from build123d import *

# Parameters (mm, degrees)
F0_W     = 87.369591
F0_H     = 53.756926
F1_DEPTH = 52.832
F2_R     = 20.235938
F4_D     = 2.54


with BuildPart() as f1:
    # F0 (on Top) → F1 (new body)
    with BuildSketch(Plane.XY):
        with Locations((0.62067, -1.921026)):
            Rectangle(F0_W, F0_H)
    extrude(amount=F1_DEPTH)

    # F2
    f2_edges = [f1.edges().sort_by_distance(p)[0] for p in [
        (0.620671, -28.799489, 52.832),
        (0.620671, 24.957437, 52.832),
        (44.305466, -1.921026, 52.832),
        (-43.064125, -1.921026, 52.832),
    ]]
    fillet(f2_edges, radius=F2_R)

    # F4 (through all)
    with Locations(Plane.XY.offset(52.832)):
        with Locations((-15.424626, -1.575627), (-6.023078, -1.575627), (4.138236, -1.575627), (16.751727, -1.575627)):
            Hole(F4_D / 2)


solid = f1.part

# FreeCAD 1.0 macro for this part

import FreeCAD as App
import Part
import Sketcher
Q = App.Units.Quantity


def edges_at(feature, points):
    """Names of the edges that pass closest to the given points."""
    edges = feature.Shape.Edges
    near = lambda p: min(range(len(edges)), key=lambda i: edges[i].distToShape(Part.Vertex(*p))[0])
    return sorted({f"Edge{near(p) + 1}" for p in points})

doc = App.newDocument("Part")
body = doc.addObject("PartDesign::Body", "Body")

# Sketch on XY plane
sketch1 = body.newObject("Sketcher::SketchObject", "Sketch")
sketch1.AttachmentSupport = (doc.getObject("XY_Plane"), [""])
sketch1.MapMode = "FlatFace"
sketch1.addGeometry([
    Part.LineSegment(App.Vector(-43, 25, 0), App.Vector(-43, -29, 0)),
    Part.LineSegment(App.Vector(-43, -29, 0), App.Vector(44, -29, 0)),
    Part.LineSegment(App.Vector(44, -29, 0), App.Vector(44, 25, 0)),
    Part.LineSegment(App.Vector(44, 25, 0), App.Vector(-43, 25, 0)),
], False)
sketch1.addConstraint([
    Sketcher.Constraint("Coincident", 0, 2, 1, 1),
    Sketcher.Constraint("Coincident", 1, 2, 2, 1),
    Sketcher.Constraint("Coincident", 2, 2, 3, 1),
    Sketcher.Constraint("Coincident", 3, 2, 0, 1),
    Sketcher.Constraint("Vertical", 0),
    Sketcher.Constraint("Horizontal", 1),
    Sketcher.Constraint("Vertical", 2),
    Sketcher.Constraint("Horizontal", 3),
    Sketcher.Constraint("DistanceX", 1, 1, 1, 2, 87.369591),
    Sketcher.Constraint("DistanceY", 0, 2, 0, 1, 53.756926),
    Sketcher.Constraint("DistanceY", 0, 2, -1, 1, 28.799489),
    Sketcher.Constraint("DistanceX", 0, 2, -1, 1, 43.064126),
])
pad1 = body.newObject("PartDesign::Pad", "Pad")
pad1.Profile = sketch1
pad1.Length = Q("2.08 in")
doc.recompute()

fillet = body.newObject("PartDesign::Fillet", "Fillet")
fillet.Base = (pad1, edges_at(pad1, [
    (0.621, -28.799, 52.832),
    (0.621, 24.957, 52.832),
    (44.305, -1.921, 52.832),
    (-43.064, -1.921, 52.832),
]))
fillet.Radius = 20.235938

# Sketch on XY plane
sketch2 = body.newObject("Sketcher::SketchObject", "Sketch001")
sketch2.AttachmentSupport = (doc.getObject("XY_Plane"), [""])
sketch2.MapMode = "FlatFace"
sketch2.AttachmentOffset = App.Placement(App.Vector(0, 0, 2.08 * 25.4), App.Rotation())
sketch2.addGeometry([
    Part.Circle(App.Vector(-15.4, -1.6, 0), App.Vector(0, 0, 1), 1.3),
    Part.Circle(App.Vector(-6, -1.6, 0), App.Vector(0, 0, 1), 1.3),
    Part.Circle(App.Vector(4.1, -1.6, 0), App.Vector(0, 0, 1), 1.3),
    Part.Circle(App.Vector(16.8, -1.6, 0), App.Vector(0, 0, 1), 1.3),
], False)
sketch2.addConstraint([
    Sketcher.Constraint("Equal", 0, 1),
    Sketcher.Constraint("Equal", 1, 2),
    Sketcher.Constraint("Equal", 2, 3),
    Sketcher.Constraint("Horizontal", 0, 3, 1, 3),
    Sketcher.Constraint("Horizontal", 1, 3, 2, 3),
    Sketcher.Constraint("Horizontal", 2, 3, 3, 3),
    Sketcher.Constraint("Diameter", 0, Q("0.1 in")),
    Sketcher.Constraint("DistanceX", 0, 3, 2, 3, 19.562862),
    Sketcher.Constraint("DistanceX", 2, 3, 3, 3, 12.613491),
    Sketcher.Constraint("DistanceX", 0, 3, -1, 1, 15.424626),
    Sketcher.Constraint("DistanceY", 0, 3, -1, 1, 1.575627),
    Sketcher.Constraint("DistanceX", 1, 3, -1, 1, 6.023078),
])
doc.recompute()
hole = body.newObject("PartDesign::Hole", "Hole")
hole.Profile = sketch2
hole.ThreadType = "None"
hole.Diameter = Q("0.1 in")
hole.DepthType = "ThroughAll"

doc.recompute()
